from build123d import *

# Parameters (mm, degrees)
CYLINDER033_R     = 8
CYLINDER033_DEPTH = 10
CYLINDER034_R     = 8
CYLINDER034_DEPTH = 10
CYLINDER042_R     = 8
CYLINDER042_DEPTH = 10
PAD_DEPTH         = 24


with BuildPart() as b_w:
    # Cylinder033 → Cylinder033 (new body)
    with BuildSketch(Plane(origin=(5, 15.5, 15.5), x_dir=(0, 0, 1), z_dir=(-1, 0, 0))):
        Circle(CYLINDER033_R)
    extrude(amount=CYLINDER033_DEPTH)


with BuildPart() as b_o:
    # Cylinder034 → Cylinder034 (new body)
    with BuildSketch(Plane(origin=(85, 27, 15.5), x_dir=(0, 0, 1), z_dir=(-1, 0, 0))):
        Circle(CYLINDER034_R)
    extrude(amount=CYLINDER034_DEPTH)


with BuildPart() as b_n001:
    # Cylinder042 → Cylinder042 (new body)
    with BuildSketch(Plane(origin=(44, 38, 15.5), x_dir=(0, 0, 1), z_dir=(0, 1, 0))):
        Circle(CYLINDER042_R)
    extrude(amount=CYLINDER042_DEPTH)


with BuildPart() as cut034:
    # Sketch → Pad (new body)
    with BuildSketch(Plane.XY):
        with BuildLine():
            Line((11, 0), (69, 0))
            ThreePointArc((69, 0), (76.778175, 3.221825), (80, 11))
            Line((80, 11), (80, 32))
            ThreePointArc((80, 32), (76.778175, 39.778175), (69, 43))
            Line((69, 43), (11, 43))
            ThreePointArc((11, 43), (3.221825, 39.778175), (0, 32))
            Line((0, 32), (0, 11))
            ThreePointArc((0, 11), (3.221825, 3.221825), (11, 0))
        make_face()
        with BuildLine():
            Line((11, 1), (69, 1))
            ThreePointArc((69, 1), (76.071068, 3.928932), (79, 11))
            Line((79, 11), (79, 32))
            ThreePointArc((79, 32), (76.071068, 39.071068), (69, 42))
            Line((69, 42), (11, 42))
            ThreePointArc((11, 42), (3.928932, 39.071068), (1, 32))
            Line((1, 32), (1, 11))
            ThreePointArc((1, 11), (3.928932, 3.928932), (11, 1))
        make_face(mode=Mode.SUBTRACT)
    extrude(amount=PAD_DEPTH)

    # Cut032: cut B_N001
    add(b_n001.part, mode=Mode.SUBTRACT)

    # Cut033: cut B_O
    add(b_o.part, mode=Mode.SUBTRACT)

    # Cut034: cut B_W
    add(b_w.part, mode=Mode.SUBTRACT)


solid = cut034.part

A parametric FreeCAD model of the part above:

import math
import FreeCAD as App
import Part
import Sketcher

doc = App.newDocument("Part")
body = doc.addObject("PartDesign::Body", "Body")

# Sketch on YZ plane
sketch1 = body.newObject("Sketcher::SketchObject", "Sketch")
sketch1.AttachmentSupport = (doc.getObject("YZ_Plane"), [""])
sketch1.MapMode = "FlatFace"
sketch1.AttachmentOffset = App.Placement(App.Vector(0, 0, 5), App.Rotation())
sketch1.addGeometry(Part.Circle(App.Vector(16, 16, 0), App.Vector(0, 0, 1), 8), False)
sketch1.addConstraint([
    Sketcher.Constraint("Diameter", 0, 16.0),
    Sketcher.Constraint("DistanceX", -1, 1, 0, 3, 15.5),
    Sketcher.Constraint("DistanceY", -1, 1, 0, 3, 15.5),
])
pad1 = body.newObject("PartDesign::Pad", "Pad")
pad1.Profile = sketch1
pad1.Length = 10
pad1.Reversed = True
body2 = doc.addObject("PartDesign::Body", "Body001")

# Sketch on YZ plane
sketch2 = body2.newObject("Sketcher::SketchObject", "Sketch001")
sketch2.AttachmentSupport = (doc.getObject("YZ_Plane001"), [""])
sketch2.MapMode = "FlatFace"
sketch2.AttachmentOffset = App.Placement(App.Vector(0, 0, 85), App.Rotation())
sketch2.addGeometry(Part.Circle(App.Vector(27, 16, 0), App.Vector(0, 0, 1), 8), False)
sketch2.addConstraint([
    Sketcher.Constraint("Diameter", 0, 16.0),
    Sketcher.Constraint("DistanceX", -1, 1, 0, 3, 27.0),
    Sketcher.Constraint("DistanceY", -1, 1, 0, 3, 15.5),
])
pad2 = body2.newObject("PartDesign::Pad", "Pad001")
pad2.Profile = sketch2
pad2.Length = 10
pad2.Reversed = True
body3 = doc.addObject("PartDesign::Body", "Body002")

# Sketch on XZ plane
sketch3 = body3.newObject("Sketcher::SketchObject", "Sketch002")
sketch3.AttachmentSupport = (doc.getObject("XZ_Plane002"), [""])
sketch3.MapMode = "FlatFace"
sketch3.AttachmentOffset = App.Placement(App.Vector(0, 0, -38), App.Rotation())
sketch3.addGeometry(Part.Circle(App.Vector(44, 16, 0), App.Vector(0, 0, 1), 8), False)
sketch3.addConstraint([
    Sketcher.Constraint("Diameter", 0, 16.0),
    Sketcher.Constraint("DistanceX", -1, 1, 0, 3, 44.0),
    Sketcher.Constraint("DistanceY", -1, 1, 0, 3, 15.5),
])
pad3 = body3.newObject("PartDesign::Pad", "Pad002")
pad3.Profile = sketch3
pad3.Length = 10
pad3.Reversed = True
body4 = doc.addObject("PartDesign::Body", "Body003")

# Sketch on XY plane
sketch4 = body4.newObject("Sketcher::SketchObject", "Sketch003")
sketch4.AttachmentSupport = (doc.getObject("XY_Plane003"), [""])
sketch4.MapMode = "FlatFace"
sketch4.addGeometry([
    Part.LineSegment(App.Vector(11, 0, 0), App.Vector(69, 0, 0)),  # 0
    Part.ArcOfCircle(Part.Circle(App.Vector(69, 11, 0), App.Vector(0, 0, 1), 11), math.radians(-90), math.radians(0)),  # 1
    Part.LineSegment(App.Vector(80, 11, 0), App.Vector(80, 32, 0)),  # 2
    Part.ArcOfCircle(Part.Circle(App.Vector(69, 32, 0), App.Vector(0, 0, 1), 11), math.radians(0), math.radians(90)),  # 3
    Part.LineSegment(App.Vector(69, 43, 0), App.Vector(11, 43, 0)),  # 4
    Part.ArcOfCircle(Part.Circle(App.Vector(11, 32, 0), App.Vector(0, 0, 1), 11), math.radians(90), math.radians(180)),  # 5
    Part.LineSegment(App.Vector(0, 32, 0), App.Vector(0, 11, 0)),  # 6
    Part.ArcOfCircle(Part.Circle(App.Vector(11, 11, 0), App.Vector(0, 0, 1), 11), math.radians(180), math.radians(270)),  # 7
    Part.LineSegment(App.Vector(69, 1, 0), App.Vector(11, 1, 0)),  # 8
    Part.ArcOfCircle(Part.Circle(App.Vector(11, 11, 0), App.Vector(0, 0, 1), 10), math.radians(180), math.radians(270)),  # 9
    Part.LineSegment(App.Vector(1, 11, 0), App.Vector(1, 32, 0)),  # 10
    Part.ArcOfCircle(Part.Circle(App.Vector(11, 32, 0), App.Vector(0, 0, 1), 10), math.radians(90), math.radians(180)),  # 11
    Part.LineSegment(App.Vector(11, 42, 0), App.Vector(69, 42, 0)),  # 12
    Part.ArcOfCircle(Part.Circle(App.Vector(69, 32, 0), App.Vector(0, 0, 1), 10), math.radians(0), math.radians(90)),  # 13
    Part.LineSegment(App.Vector(79, 32, 0), App.Vector(79, 11, 0)),  # 14
    Part.ArcOfCircle(Part.Circle(App.Vector(69, 11, 0), App.Vector(0, 0, 1), 10), math.radians(-90), math.radians(0)),  # 15
], False)
sketch4.addConstraint([
    Sketcher.Constraint("Tangent", 0, 2, 1, 1),
    Sketcher.Constraint("Tangent", 1, 2, 2, 1),
    Sketcher.Constraint("Tangent", 2, 2, 3, 1),
    Sketcher.Constraint("Tangent", 3, 2, 4, 1),
    Sketcher.Constraint("Tangent", 4, 2, 5, 1),
    Sketcher.Constraint("Tangent", 5, 2, 6, 1),
    Sketcher.Constraint("Tangent", 6, 2, 7, 1),
    Sketcher.Constraint("Tangent", 7, 2, 0, 1),
    Sketcher.Constraint("Tangent", 8, 2, 9, 2),
    Sketcher.Constraint("Tangent", 9, 1, 10, 1),
    Sketcher.Constraint("Tangent", 10, 2, 11, 2),
    Sketcher.Constraint("Tangent", 11, 1, 12, 1),
    Sketcher.Constraint("Tangent", 12, 2, 13, 2),
    Sketcher.Constraint("Tangent", 13, 1, 14, 1),
    Sketcher.Constraint("Tangent", 14, 2, 15, 2),
    Sketcher.Constraint("Tangent", 15, 1, 8, 1),
    Sketcher.Constraint("Horizontal", 0),
    Sketcher.Constraint("Vertical", 2),
    Sketcher.Constraint("Horizontal", 4),
    Sketcher.Constraint("Vertical", 6),
    Sketcher.Constraint("Horizontal", 8),
    Sketcher.Constraint("Vertical", 10),
    Sketcher.Constraint("Horizontal", 12),
    Sketcher.Constraint("Vertical", 14),
    Sketcher.Constraint("Coincident", 9, 3, 7, 3),
    Sketcher.Constraint("Coincident", 11, 3, 5, 3),
    Sketcher.Constraint("Coincident", 13, 3, 3, 3),
    Sketcher.Constraint("Equal", 1, 3),
    Sketcher.Constraint("Equal", 3, 5),
    Sketcher.Constraint("Equal", 5, 7),
    Sketcher.Constraint("Equal", 13, 15),
    Sketcher.Constraint("PointOnObject", 0, 2, -1),
    Sketcher.Constraint("PointOnObject", 5, 2, -2),
    Sketcher.Constraint("Radius", 1, 10.999999),
    Sketcher.Constraint("Radius", 9, 9.999999),
    Sketcher.Constraint("DistanceX", 0, 1, 0, 2, 58.0),
    Sketcher.Constraint("DistanceY", 2, 1, 2, 2, 21.0),
])
pad4 = body4.newObject("PartDesign::Pad", "Pad003")
pad4.Profile = sketch4
pad4.Length = 24
doc.recompute()

boolean = body4.newObject("PartDesign::Boolean", "Boolean")
boolean.Type = "Cut"
boolean.addObjects([body3])
doc.recompute()

boolean2 = body4.newObject("PartDesign::Boolean", "Boolean001")
boolean2.Type = "Cut"
boolean2.addObjects([body2])
doc.recompute()

boolean3 = body4.newObject("PartDesign::Boolean", "Boolean002")
boolean3.Type = "Cut"
boolean3.addObjects([body])

doc.recompute()
